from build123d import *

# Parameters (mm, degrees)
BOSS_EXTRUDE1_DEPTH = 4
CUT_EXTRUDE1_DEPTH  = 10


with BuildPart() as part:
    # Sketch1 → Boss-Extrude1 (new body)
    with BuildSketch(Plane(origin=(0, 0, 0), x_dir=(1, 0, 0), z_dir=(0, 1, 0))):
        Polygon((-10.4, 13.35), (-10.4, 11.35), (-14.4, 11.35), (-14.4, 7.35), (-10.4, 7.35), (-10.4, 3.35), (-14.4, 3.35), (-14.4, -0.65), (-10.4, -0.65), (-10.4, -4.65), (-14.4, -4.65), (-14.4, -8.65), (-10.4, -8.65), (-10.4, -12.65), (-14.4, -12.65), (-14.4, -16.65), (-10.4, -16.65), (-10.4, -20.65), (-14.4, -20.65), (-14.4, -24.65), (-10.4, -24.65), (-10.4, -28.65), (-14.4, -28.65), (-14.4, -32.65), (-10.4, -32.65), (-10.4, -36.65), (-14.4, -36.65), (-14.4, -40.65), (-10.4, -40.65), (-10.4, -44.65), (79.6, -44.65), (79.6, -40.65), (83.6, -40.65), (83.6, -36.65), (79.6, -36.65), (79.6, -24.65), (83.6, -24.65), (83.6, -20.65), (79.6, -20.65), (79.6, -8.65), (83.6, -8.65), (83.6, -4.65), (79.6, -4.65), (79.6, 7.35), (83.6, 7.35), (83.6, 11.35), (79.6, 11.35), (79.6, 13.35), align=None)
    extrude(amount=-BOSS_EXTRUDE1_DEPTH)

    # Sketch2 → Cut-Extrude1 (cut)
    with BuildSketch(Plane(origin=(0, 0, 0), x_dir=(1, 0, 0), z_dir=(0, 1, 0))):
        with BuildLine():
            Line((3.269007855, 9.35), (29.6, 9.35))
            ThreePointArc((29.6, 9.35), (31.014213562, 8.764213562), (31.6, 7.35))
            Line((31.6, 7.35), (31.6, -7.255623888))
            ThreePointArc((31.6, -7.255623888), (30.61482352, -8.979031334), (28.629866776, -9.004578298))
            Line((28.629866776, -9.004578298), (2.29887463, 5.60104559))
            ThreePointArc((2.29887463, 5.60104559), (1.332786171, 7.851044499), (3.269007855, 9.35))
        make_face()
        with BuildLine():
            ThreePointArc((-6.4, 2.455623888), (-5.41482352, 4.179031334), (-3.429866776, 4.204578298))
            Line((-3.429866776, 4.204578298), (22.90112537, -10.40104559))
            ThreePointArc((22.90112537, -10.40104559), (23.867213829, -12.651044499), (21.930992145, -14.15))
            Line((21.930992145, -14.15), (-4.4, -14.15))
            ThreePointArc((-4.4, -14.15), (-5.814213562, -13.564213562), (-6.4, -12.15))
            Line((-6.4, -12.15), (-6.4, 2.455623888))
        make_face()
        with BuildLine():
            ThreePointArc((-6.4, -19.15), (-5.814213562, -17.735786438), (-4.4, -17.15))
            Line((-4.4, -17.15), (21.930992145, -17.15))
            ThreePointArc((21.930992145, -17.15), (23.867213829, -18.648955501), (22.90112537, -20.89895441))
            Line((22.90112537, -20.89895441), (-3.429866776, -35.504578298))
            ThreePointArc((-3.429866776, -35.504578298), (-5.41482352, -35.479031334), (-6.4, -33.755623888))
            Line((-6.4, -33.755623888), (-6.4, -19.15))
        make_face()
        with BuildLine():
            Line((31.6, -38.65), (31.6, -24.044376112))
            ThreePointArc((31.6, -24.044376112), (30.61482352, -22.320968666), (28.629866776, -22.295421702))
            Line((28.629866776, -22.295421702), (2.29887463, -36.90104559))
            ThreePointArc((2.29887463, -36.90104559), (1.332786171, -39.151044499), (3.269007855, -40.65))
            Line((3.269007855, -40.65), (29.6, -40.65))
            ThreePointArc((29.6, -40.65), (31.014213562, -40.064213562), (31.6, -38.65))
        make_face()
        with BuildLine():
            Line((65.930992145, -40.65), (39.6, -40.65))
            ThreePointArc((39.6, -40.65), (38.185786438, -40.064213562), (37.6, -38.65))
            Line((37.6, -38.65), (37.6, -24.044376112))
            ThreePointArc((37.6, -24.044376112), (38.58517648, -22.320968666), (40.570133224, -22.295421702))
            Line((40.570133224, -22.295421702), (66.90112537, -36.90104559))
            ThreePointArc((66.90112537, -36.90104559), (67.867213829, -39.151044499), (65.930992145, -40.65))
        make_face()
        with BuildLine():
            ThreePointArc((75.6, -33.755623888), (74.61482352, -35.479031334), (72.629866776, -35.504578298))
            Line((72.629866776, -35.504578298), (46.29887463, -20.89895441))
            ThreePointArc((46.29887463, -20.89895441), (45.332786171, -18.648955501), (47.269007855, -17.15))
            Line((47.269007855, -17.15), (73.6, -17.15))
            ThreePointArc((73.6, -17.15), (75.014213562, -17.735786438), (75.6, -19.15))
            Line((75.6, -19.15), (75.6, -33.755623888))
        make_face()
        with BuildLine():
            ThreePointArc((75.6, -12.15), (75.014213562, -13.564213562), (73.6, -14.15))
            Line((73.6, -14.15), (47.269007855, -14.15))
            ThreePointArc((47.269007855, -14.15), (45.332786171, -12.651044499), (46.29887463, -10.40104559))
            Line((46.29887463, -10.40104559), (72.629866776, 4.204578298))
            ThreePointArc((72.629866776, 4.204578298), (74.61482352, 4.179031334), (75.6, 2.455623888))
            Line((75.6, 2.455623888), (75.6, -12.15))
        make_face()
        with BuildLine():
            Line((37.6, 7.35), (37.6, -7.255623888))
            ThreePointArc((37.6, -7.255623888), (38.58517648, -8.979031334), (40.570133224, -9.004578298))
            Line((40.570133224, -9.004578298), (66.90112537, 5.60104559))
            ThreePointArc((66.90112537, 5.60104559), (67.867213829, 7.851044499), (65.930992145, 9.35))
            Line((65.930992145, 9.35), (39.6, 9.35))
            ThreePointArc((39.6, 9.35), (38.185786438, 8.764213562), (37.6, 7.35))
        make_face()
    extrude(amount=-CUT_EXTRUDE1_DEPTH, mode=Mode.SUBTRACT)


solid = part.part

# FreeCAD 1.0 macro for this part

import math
import FreeCAD as App
import Part
import Sketcher


def add_polygon(sketch, points):
    """Adds a closed chain of lines whose ends are joined by coincident constraints."""
    first, n = sketch.GeometryCount, len(points)
    for a, b in zip(points, points[1:] + points[:1]):
        sketch.addGeometry(Part.LineSegment(App.Vector(*a, 0), App.Vector(*b, 0)), False)
    for i in range(n):
        sketch.addConstraint(Sketcher.Constraint("Coincident", first + i, 2, first + (i + 1) % n, 1))

doc = App.newDocument("Part")
body = doc.addObject("PartDesign::Body", "Body")

# Sketch on XZ plane
sketch1 = body.newObject("Sketcher::SketchObject", "Sketch")
sketch1.AttachmentSupport = (doc.getObject("XZ_Plane"), [""])
sketch1.MapMode = "FlatFace"
add_polygon(sketch1, [(-10.4, -13.3), (-10.4, -11.3), (-14.4, -11.3), (-14.4, -7.3), (-10.4, -7.3), (-10.4, -3.4), (-14.4, -3.4), (-14.4, 0.7), (-10.4, 0.7), (-10.4, 4.7), (-14.4, 4.7), (-14.4, 8.7), (-10.4, 8.7), (-10.4, 12.7), (-14.4, 12.7), (-14.4, 16.6), (-10.4, 16.6), (-10.4, 20.6), (-14.4, 20.6), (-14.4, 24.6), (-10.4, 24.6), (-10.4, 28.6), (-14.4, 28.6), (-14.4, 32.6), (-10.4, 32.6), (-10.4, 36.6), (-14.4, 36.6), (-14.4, 40.6), (-10.4, 40.6), (-10.4, 44.6), (79.6, 44.6), (79.6, 40.6), (83.6, 40.6), (83.6, 36.6), (79.6, 36.6), (79.6, 24.6), (83.6, 24.6), (83.6, 20.6), (79.6, 20.6), (79.6, 8.7), (83.6, 8.7), (83.6, 4.7), (79.6, 4.7), (79.6, -7.3), (83.6, -7.3), (83.6, -11.3), (79.6, -11.3), (79.6, -13.3)])  # lines 0-47
sketch1.addConstraint([
    Sketcher.Constraint("Vertical", 0),
    Sketcher.Constraint("Horizontal", 1),
    Sketcher.Constraint("Vertical", 2),
    Sketcher.Constraint("Horizontal", 3),
    Sketcher.Constraint("Vertical", 4),
    Sketcher.Constraint("Horizontal", 5),
    Sketcher.Constraint("Vertical", 6),
    Sketcher.Constraint("Horizontal", 7),
    Sketcher.Constraint("Vertical", 8),
    Sketcher.Constraint("Horizontal", 9),
    Sketcher.Constraint("Vertical", 10),
    Sketcher.Constraint("Horizontal", 11),
    Sketcher.Constraint("Vertical", 12),
    Sketcher.Constraint("Horizontal", 13),
    Sketcher.Constraint("Vertical", 14),
    Sketcher.Constraint("Horizontal", 15),
    Sketcher.Constraint("Vertical", 16),
    Sketcher.Constraint("Horizontal", 17),
    Sketcher.Constraint("Vertical", 18),
    Sketcher.Constraint("Horizontal", 19),
    Sketcher.Constraint("Vertical", 20),
    Sketcher.Constraint("Horizontal", 21),
    Sketcher.Constraint("Vertical", 22),
    Sketcher.Constraint("Horizontal", 23),
    Sketcher.Constraint("Vertical", 24),
    Sketcher.Constraint("Horizontal", 25),
    Sketcher.Constraint("Vertical", 26),
    Sketcher.Constraint("Horizontal", 27),
    Sketcher.Constraint("Vertical", 28),
    Sketcher.Constraint("Horizontal", 29),
    Sketcher.Constraint("Vertical", 30),
    Sketcher.Constraint("Horizontal", 31),
    Sketcher.Constraint("Vertical", 32),
    Sketcher.Constraint("Horizontal", 33),
    Sketcher.Constraint("Vertical", 34),
    Sketcher.Constraint("Horizontal", 35),
    Sketcher.Constraint("Vertical", 36),
    Sketcher.Constraint("Horizontal", 37),
    Sketcher.Constraint("Vertical", 38),
    Sketcher.Constraint("Horizontal", 39),
    Sketcher.Constraint("Vertical", 40),
    Sketcher.Constraint("Horizontal", 41),
    Sketcher.Constraint("Vertical", 42),
    Sketcher.Constraint("Horizontal", 43),
    Sketcher.Constraint("Vertical", 44),
    Sketcher.Constraint("Horizontal", 45),
    Sketcher.Constraint("Vertical", 46),
    Sketcher.Constraint("Horizontal", 47),
    Sketcher.Constraint("Horizontal", 27, 2, 30, 2),
    Sketcher.Constraint("Horizontal", 25, 2, 32, 2),
    Sketcher.Constraint("Horizontal", 19, 2, 34, 2),
    Sketcher.Constraint("Horizontal", 17, 2, 36, 2),
    Sketcher.Constraint("Horizontal", 11, 2, 38, 2),
    Sketcher.Constraint("Horizontal", 9, 2, 40, 2),
    Sketcher.Constraint("Horizontal", 3, 2, 42, 2),
    Sketcher.Constraint("Horizontal", 1, 2, 44, 2),
    Sketcher.Constraint("Vertical", 0, 2, 3, 2),
    Sketcher.Constraint("Vertical", 2, 2, 5, 2),
    Sketcher.Constraint("Vertical", 4, 2, 7, 2),
    Sketcher.Constraint("Vertical", 6, 2, 9, 2),
    Sketcher.Constraint("Vertical", 8, 2, 11, 2),
    Sketcher.Constraint("Vertical", 10, 2, 13, 2),
    Sketcher.Constraint("Vertical", 12, 2, 15, 2),
    Sketcher.Constraint("Vertical", 14, 2, 17, 2),
    Sketcher.Constraint("Vertical", 16, 2, 19, 2),
    Sketcher.Constraint("Vertical", 18, 2, 21, 2),
    Sketcher.Constraint("Vertical", 20, 2, 23, 2),
    Sketcher.Constraint("Vertical", 22, 2, 25, 2),
    Sketcher.Constraint("Vertical", 24, 2, 27, 2),
    Sketcher.Constraint("Vertical", 30, 2, 33, 2),
    Sketcher.Constraint("Vertical", 32, 2, 35, 2),
    Sketcher.Constraint("Vertical", 34, 2, 37, 2),
    Sketcher.Constraint("Vertical", 36, 2, 39, 2),
    Sketcher.Constraint("Vertical", 38, 2, 41, 2),
    Sketcher.Constraint("Vertical", 40, 2, 43, 2),
    Sketcher.Constraint("Vertical", 42, 2, 45, 2),
    Sketcher.Constraint("Equal", 27, 31),
    Sketcher.Constraint("Equal", 45, 2),
    Sketcher.Constraint("Equal", 2, 4),
    Sketcher.Constraint("Equal", 4, 6),
    Sketcher.Constraint("Equal", 6, 8),
    Sketcher.Constraint("Equal", 8, 10),
    Sketcher.Constraint("Equal", 10, 12),
    Sketcher.Constraint("Equal", 12, 14),
    Sketcher.Constraint("Equal", 14, 16),
    Sketcher.Constraint("Equal", 16, 18),
    Sketcher.Constraint("Equal", 18, 20),
    Sketcher.Constraint("Equal", 20, 22),
    Sketcher.Constraint("Equal", 22, 24),
    Sketcher.Constraint("Equal", 24, 26),
    Sketcher.Constraint("Equal", 26, 28),
    Sketcher.Constraint("DistanceX", 1, 2, 1, 1, 4.0),
    Sketcher.Constraint("DistanceX", 29, 1, 29, 2, 90.0),
    Sketcher.Constraint("DistanceY", 0, 1, 0, 2, 2.0),
    Sketcher.Constraint("DistanceX", 0, 2, -1, 1, 10.4),
    Sketcher.Constraint("DistanceY", 0, 2, -1, 1, 11.35),
])
pad1 = body.newObject("PartDesign::Pad", "Pad")
pad1.Profile = sketch1
pad1.Length = 4

# Sketch on XZ plane
sketch2 = body.newObject("Sketcher::SketchObject", "Sketch001")
sketch2.AttachmentSupport = (doc.getObject("XZ_Plane"), [""])
sketch2.MapMode = "FlatFace"
sketch2.addGeometry([
    Part.LineSegment(App.Vector(29.6, -9.3, 0), App.Vector(3.3, -9.3, 0)),  # 0
    Part.ArcOfCircle(Part.Circle(App.Vector(3.3, -7.3, 0), App.Vector(0, 0, 1), 2), math.radians(119), math.radians(270)),  # 1
    Part.LineSegment(App.Vector(2.3, -5.6, 0), App.Vector(28.6, 9, 0)),  # 2
    Part.ArcOfCircle(Part.Circle(App.Vector(29.6, 7.3, 0), App.Vector(0, 0, 1), 2), math.radians(0), math.radians(119)),  # 3
    Part.LineSegment(App.Vector(31.6, 7.3, 0), App.Vector(31.6, -7.3, 0)),  # 4
    Part.ArcOfCircle(Part.Circle(App.Vector(29.6, -7.3, 0), App.Vector(0, 0, 1), 2), math.radians(-90), math.radians(0)),  # 5
    Part.ArcOfCircle(Part.Circle(App.Vector(-4.4, -2.5, 0), App.Vector(0, 0, 1), 2), math.radians(180), math.radians(299)),  # 6
    Part.LineSegment(App.Vector(-6.4, -2.5, 0), App.Vector(-6.4, 12.2, 0)),  # 7
    Part.ArcOfCircle(Part.Circle(App.Vector(-4.4, 12.1, 0), App.Vector(0, 0, 1), 2), math.radians(90), math.radians(180)),  # 8
    Part.LineSegment(App.Vector(-4.4, 14.2, 0), App.Vector(21.9, 14.2, 0)),  # 9
    Part.ArcOfCircle(Part.Circle(App.Vector(21.9, 12.2, 0), App.Vector(0, 0, 1), 2), math.radians(-61), math.radians(90)),  # 10
    Part.LineSegment(App.Vector(22.9, 10.4, 0), App.Vector(-3.4, -4.2, 0)),  # 11
    Part.ArcOfCircle(Part.Circle(App.Vector(-4.4, 19.2, 0), App.Vector(0, 0, 1), 2), math.radians(-180), math.radians(-90)),  # 12
    Part.LineSegment(App.Vector(-6.4, 19.1, 0), App.Vector(-6.4, 33.8, 0)),  # 13
    Part.ArcOfCircle(Part.Circle(App.Vector(-4.4, 33.8, 0), App.Vector(0, 0, 1), 2), math.radians(61), math.radians(180)),  # 14
    Part.LineSegment(App.Vector(-3.4, 35.5, 0), App.Vector(22.9, 20.9, 0)),  # 15
    Part.ArcOfCircle(Part.Circle(App.Vector(21.9, 19.1, 0), App.Vector(0, 0, 1), 2), math.radians(-90), math.radians(61)),  # 16
    Part.LineSegment(App.Vector(21.9, 17.1, 0), App.Vector(-4.4, 17.1, 0)),  # 17
    Part.LineSegment(App.Vector(31.6, 38.6, 0), App.Vector(31.6, 24, 0)),  # 18
    Part.ArcOfCircle(Part.Circle(App.Vector(29.6, 24, 0), App.Vector(0, 0, 1), 2), math.radians(-119), math.radians(0)),  # 19
    Part.LineSegment(App.Vector(28.6, 22.3, 0), App.Vector(2.3, 36.9, 0)),  # 20
    Part.ArcOfCircle(Part.Circle(App.Vector(3.3, 38.6, 0), App.Vector(0, 0, 1), 2), math.radians(90), math.radians(241)),  # 21
    Part.LineSegment(App.Vector(3.3, 40.6, 0), App.Vector(29.6, 40.6, 0)),  # 22
    Part.ArcOfCircle(Part.Circle(App.Vector(29.6, 38.6, 0), App.Vector(0, 0, 1), 2), math.radians(0), math.radians(90)),  # 23
    Part.LineSegment(App.Vector(39.6, 40.6, 0), App.Vector(65.9, 40.6, 0)),  # 24
    Part.ArcOfCircle(Part.Circle(App.Vector(65.9, 38.6, 0), App.Vector(0, 0, 1), 2), math.radians(-61), math.radians(90)),  # 25
    Part.LineSegment(App.Vector(66.9, 36.9, 0), App.Vector(40.6, 22.3, 0)),  # 26
    Part.ArcOfCircle(Part.Circle(App.Vector(39.6, 24, 0), App.Vector(0, 0, 1), 2), math.radians(180), math.radians(299)),  # 27
    Part.LineSegment(App.Vector(37.6, 24, 0), App.Vector(37.6, 38.6, 0)),  # 28
    Part.ArcOfCircle(Part.Circle(App.Vector(39.6, 38.6, 0), App.Vector(0, 0, 1), 2), math.radians(90), math.radians(180)),  # 29
    Part.ArcOfCircle(Part.Circle(App.Vector(73.6, 33.8, 0), App.Vector(0, 0, 1), 2), math.radians(0), math.radians(119)),  # 30
    Part.LineSegment(App.Vector(75.6, 33.8, 0), App.Vector(75.6, 19.1, 0)),  # 31
    Part.ArcOfCircle(Part.Circle(App.Vector(73.6, 19.2, 0), App.Vector(0, 0, 1), 2), math.radians(-90), math.radians(0)),  # 32
    Part.LineSegment(App.Vector(73.6, 17.1, 0), App.Vector(47.3, 17.1, 0)),  # 33
    Part.ArcOfCircle(Part.Circle(App.Vector(47.3, 19.1, 0), App.Vector(0, 0, 1), 2), math.radians(119), math.radians(270)),  # 34
    Part.LineSegment(App.Vector(46.3, 20.9, 0), App.Vector(72.6, 35.5, 0)),  # 35
    Part.ArcOfCircle(Part.Circle(App.Vector(73.6, 12.1, 0), App.Vector(0, 0, 1), 2), math.radians(0), math.radians(90)),  # 36
    Part.LineSegment(App.Vector(75.6, 12.2, 0), App.Vector(75.6, -2.5, 0)),  # 37
    Part.ArcOfCircle(Part.Circle(App.Vector(73.6, -2.5, 0), App.Vector(0, 0, 1), 2), math.radians(-119), math.radians(0)),  # 38
    Part.LineSegment(App.Vector(72.6, -4.2, 0), App.Vector(46.3, 10.4, 0)),  # 39
    Part.ArcOfCircle(Part.Circle(App.Vector(47.3, 12.2, 0), App.Vector(0, 0, 1), 2), math.radians(90), math.radians(241)),  # 40
    Part.LineSegment(App.Vector(47.3, 14.2, 0), App.Vector(73.6, 14.2, 0)),  # 41
    Part.LineSegment(App.Vector(37.6, -7.3, 0), App.Vector(37.6, 7.3, 0)),  # 42
    Part.ArcOfCircle(Part.Circle(App.Vector(39.6, 7.3, 0), App.Vector(0, 0, 1), 2), math.radians(61), math.radians(180)),  # 43
    Part.LineSegment(App.Vector(40.6, 9, 0), App.Vector(66.9, -5.6, 0)),  # 44
    Part.ArcOfCircle(Part.Circle(App.Vector(65.9, -7.3, 0), App.Vector(0, 0, 1), 2), math.radians(-90), math.radians(61)),  # 45
    Part.LineSegment(App.Vector(65.9, -9.3, 0), App.Vector(39.6, -9.3, 0)),  # 46
    Part.ArcOfCircle(Part.Circle(App.Vector(39.6, -7.3, 0), App.Vector(0, 0, 1), 2), math.radians(-180), math.radians(-90)),  # 47
], False)
sketch2.addConstraint([
    Sketcher.Constraint("Tangent", 0, 2, 1, 2),
    Sketcher.Constraint("Tangent", 1, 1, 2, 1),
    Sketcher.Constraint("Tangent", 2, 2, 3, 2),
    Sketcher.Constraint("Tangent", 3, 1, 4, 1),
    Sketcher.Constraint("Tangent", 4, 2, 5, 2),
    Sketcher.Constraint("Tangent", 5, 1, 0, 1),
    Sketcher.Constraint("Tangent", 6, 1, 7, 1),
    Sketcher.Constraint("Tangent", 7, 2, 8, 2),
    Sketcher.Constraint("Tangent", 8, 1, 9, 1),
    Sketcher.Constraint("Tangent", 9, 2, 10, 2),
    Sketcher.Constraint("Tangent", 10, 1, 11, 1),
    Sketcher.Constraint("Tangent", 11, 2, 6, 2),
    Sketcher.Constraint("Tangent", 12, 1, 13, 1),
    Sketcher.Constraint("Tangent", 13, 2, 14, 2),
    Sketcher.Constraint("Tangent", 14, 1, 15, 1),
    Sketcher.Constraint("Tangent", 15, 2, 16, 2),
    Sketcher.Constraint("Tangent", 16, 1, 17, 1),
    Sketcher.Constraint("Tangent", 17, 2, 12, 2),
    Sketcher.Constraint("Tangent", 18, 2, 19, 2),
    Sketcher.Constraint("Tangent", 19, 1, 20, 1),
    Sketcher.Constraint("Tangent", 20, 2, 21, 2),
    Sketcher.Constraint("Tangent", 21, 1, 22, 1),
    Sketcher.Constraint("Tangent", 22, 2, 23, 2),
    Sketcher.Constraint("Tangent", 23, 1, 18, 1),
    Sketcher.Constraint("Tangent", 24, 2, 25, 2),
    Sketcher.Constraint("Tangent", 25, 1, 26, 1),
    Sketcher.Constraint("Tangent", 26, 2, 27, 2),
    Sketcher.Constraint("Tangent", 27, 1, 28, 1),
    Sketcher.Constraint("Tangent", 28, 2, 29, 2),
    Sketcher.Constraint("Tangent", 29, 1, 24, 1),
    Sketcher.Constraint("Tangent", 30, 1, 31, 1),
    Sketcher.Constraint("Tangent", 31, 2, 32, 2),
    Sketcher.Constraint("Tangent", 32, 1, 33, 1),
    Sketcher.Constraint("Tangent", 33, 2, 34, 2),
    Sketcher.Constraint("Tangent", 34, 1, 35, 1),
    Sketcher.Constraint("Tangent", 35, 2, 30, 2),
    Sketcher.Constraint("Tangent", 36, 1, 37, 1),
    Sketcher.Constraint("Tangent", 37, 2, 38, 2),
    Sketcher.Constraint("Tangent", 38, 1, 39, 1),
    Sketcher.Constraint("Tangent", 39, 2, 40, 2),
    Sketcher.Constraint("Tangent", 40, 1, 41, 1),
    Sketcher.Constraint("Tangent", 41, 2, 36, 2),
    Sketcher.Constraint("Tangent", 42, 2, 43, 2),
    Sketcher.Constraint("Tangent", 43, 1, 44, 1),
    Sketcher.Constraint("Tangent", 44, 2, 45, 2),
    Sketcher.Constraint("Tangent", 45, 1, 46, 1),
    Sketcher.Constraint("Tangent", 46, 2, 47, 2),
    Sketcher.Constraint("Tangent", 47, 1, 42, 1),
    Sketcher.Constraint("Horizontal", 0),
    Sketcher.Constraint("Vertical", 4),
    Sketcher.Constraint("Vertical", 7),
    Sketcher.Constraint("Horizontal", 9),
    Sketcher.Constraint("Vertical", 13),
    Sketcher.Constraint("Horizontal", 17),
    Sketcher.Constraint("Vertical", 18),
    Sketcher.Constraint("Horizontal", 22),
    Sketcher.Constraint("Horizontal", 24),
    Sketcher.Constraint("Vertical", 28),
    Sketcher.Constraint("Vertical", 31),
    Sketcher.Constraint("Horizontal", 33),
    Sketcher.Constraint("Vertical", 37),
    Sketcher.Constraint("Horizontal", 41),
    Sketcher.Constraint("Vertical", 42),
    Sketcher.Constraint("Horizontal", 46),
    Sketcher.Constraint("Equal", 1, 3),
    Sketcher.Constraint("Equal", 3, 5),
    Sketcher.Constraint("Equal", 5, 6),
    Sketcher.Constraint("Equal", 6, 8),
    Sketcher.Constraint("Equal", 8, 10),
    Sketcher.Constraint("Equal", 10, 12),
    Sketcher.Constraint("Equal", 12, 14),
    Sketcher.Constraint("Equal", 14, 16),
    Sketcher.Constraint("Equal", 16, 19),
    Sketcher.Constraint("Equal", 19, 21),
    Sketcher.Constraint("Equal", 21, 23),
    Sketcher.Constraint("Equal", 23, 25),
    Sketcher.Constraint("Equal", 25, 27),
    Sketcher.Constraint("Equal", 27, 29),
    Sketcher.Constraint("Equal", 29, 30),
    Sketcher.Constraint("Equal", 30, 32),
    Sketcher.Constraint("Equal", 32, 34),
    Sketcher.Constraint("Equal", 34, 36),
    Sketcher.Constraint("Equal", 36, 38),
    Sketcher.Constraint("Equal", 38, 40),
    Sketcher.Constraint("Equal", 40, 43),
    Sketcher.Constraint("Equal", 43, 45),
    Sketcher.Constraint("Equal", 45, 47),
    Sketcher.Constraint("Parallel", 2, 11),
    Sketcher.Constraint("Parallel", 15, 20),
    Sketcher.Constraint("Parallel", 11, 26),
    Sketcher.Constraint("Parallel", 26, 35),
    Sketcher.Constraint("Parallel", 20, 39),
    Sketcher.Constraint("Parallel", 39, 44),
    Sketcher.Constraint("Horizontal", 23, 3, 25, 3),
    Sketcher.Constraint("Horizontal", 19, 3, 27, 3),
    Sketcher.Constraint("Horizontal", 14, 3, 30, 3),
    Sketcher.Constraint("Horizontal", 16, 3, 32, 3),
    Sketcher.Constraint("Horizontal", 10, 3, 36, 3),
    Sketcher.Constraint("Horizontal", 6, 3, 38, 3),
    Sketcher.Constraint("Horizontal", 3, 3, 43, 3),
    Sketcher.Constraint("Horizontal", 5, 3, 45, 3),
    Sketcher.Constraint("Horizontal", 20, 2, 25, 1),
    Sketcher.Constraint("Vertical", 8, 3, 12, 3),
    Sketcher.Constraint("Vertical", 10, 3, 16, 3),
    Sketcher.Constraint("Vertical", 5, 3, 19, 3),
    Sketcher.Constraint("Vertical", 1, 3, 21, 3),
    Sketcher.Constraint("Vertical", 32, 3, 36, 3),
    Sketcher.Constraint("Vertical", 29, 3, 43, 3),
    Sketcher.Constraint("Equal", 0, 9),
    Sketcher.Constraint("Radius", 1, 2.0),
    Sketcher.Constraint("DistanceX", -1, 1, 3, 3, 29.6),
    Sketcher.Constraint("DistanceX", 6, 3, -1, 1, 4.4),
    Sketcher.Constraint("DistanceX", -1, 1, 27, 3, 39.6),
    Sketcher.Constraint("DistanceX", -1, 1, 30, 3, 73.6),
    Sketcher.Constraint("DistanceY", 1, 3, -1, 1, 7.35),
    Sketcher.Constraint("DistanceY", -1, 1, 8, 3, 12.15),
    Sketcher.Constraint("DistanceY", -1, 1, 12, 3, 19.15),
    Sketcher.Constraint("DistanceY", -1, 1, 21, 3, 38.65),
    Sketcher.Constraint("DistanceX", 0, 2, 0, 1, 26.330992),
    Sketcher.Constraint("DistanceY", 4, 2, 4, 1, 14.605624),
])
pocket1 = body.newObject("PartDesign::Pocket", "Pocket")
pocket1.Profile = sketch2
pocket1.Length = 10
pocket1.Reversed = True

doc.recompute()
